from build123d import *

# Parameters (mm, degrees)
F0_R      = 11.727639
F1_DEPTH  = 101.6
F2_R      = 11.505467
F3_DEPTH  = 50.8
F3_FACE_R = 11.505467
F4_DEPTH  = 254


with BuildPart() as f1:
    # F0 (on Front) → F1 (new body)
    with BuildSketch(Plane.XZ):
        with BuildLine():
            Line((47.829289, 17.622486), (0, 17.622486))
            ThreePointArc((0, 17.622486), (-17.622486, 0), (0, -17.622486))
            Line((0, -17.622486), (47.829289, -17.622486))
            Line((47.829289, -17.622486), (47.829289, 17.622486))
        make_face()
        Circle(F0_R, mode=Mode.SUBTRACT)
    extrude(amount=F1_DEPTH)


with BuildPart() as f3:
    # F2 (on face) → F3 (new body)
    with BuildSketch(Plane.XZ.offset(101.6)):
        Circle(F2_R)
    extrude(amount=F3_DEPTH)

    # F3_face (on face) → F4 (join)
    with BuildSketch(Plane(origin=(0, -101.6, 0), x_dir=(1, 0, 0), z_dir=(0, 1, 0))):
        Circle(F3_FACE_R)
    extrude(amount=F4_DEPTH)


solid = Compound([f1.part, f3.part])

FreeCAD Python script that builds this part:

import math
import FreeCAD as App
import Part
import Sketcher
from FreeCAD import Vector

doc = App.newDocument("Part")
params = doc.addObject("Spreadsheet::Sheet", "Params")
for row, (alias, value) in enumerate([
    ("pad1_length", "4 in"),
    ("pad2_length", "2 in"),
    ("pad3_length", "10 in"),
], start=1):
    params.set(f"A{row}", alias)
    params.set(f"B{row}", "=" + value)
    params.setAlias(f"B{row}", alias)

body = doc.addObject("PartDesign::Body", "Body")

sketch1 = body.newObject("Sketcher::SketchObject", "Sketch")
sketch1.AttachmentSupport = (doc.getObject("XZ_Plane"), [""])
sketch1.MapMode = "FlatFace"
sketch1.addGeometry([
    Part.LineSegment(Vector(48, 18, 0), Vector(0, 18, 0)),
    Part.ArcOfCircle(Part.Circle(Vector(0, 0, 0), Vector(0, 0, 1), 18), math.radians(90), math.radians(270)),
    Part.LineSegment(Vector(0, -18, 0), Vector(48, -18, 0)),
    Part.LineSegment(Vector(48, -18, 0), Vector(48, 18, 0)),
    Part.Circle(Vector(0, 0, 0), Vector(0, 0, 1), 12),
], False)
sketch1.addConstraint([
    Sketcher.Constraint("Tangent", 0, 2, 1, 1),
    Sketcher.Constraint("Tangent", 1, 2, 2, 1),
    Sketcher.Constraint("Coincident", 2, 2, 3, 1),
    Sketcher.Constraint("Coincident", 3, 2, 0, 1),
    Sketcher.Constraint("Horizontal", 0),
    Sketcher.Constraint("Horizontal", 2),
    Sketcher.Constraint("Vertical", 3),
    Sketcher.Constraint("Coincident", 1, 3, -1, 1),
    Sketcher.Constraint("Coincident", 4, 3, -1, 1),
    Sketcher.Constraint("Diameter", 4, 23.455278),
    Sketcher.Constraint("Radius", 1, 17.622486),
    Sketcher.Constraint("DistanceX", 0, 2, 0, 1, 47.829289),
])
pad1 = body.newObject("PartDesign::Pad", "Pad")
pad1.Profile = sketch1
pad1.setExpression("Length", "Params.pad1_length")
body2 = doc.addObject("PartDesign::Body", "Body001")

sketch2 = body2.newObject("Sketcher::SketchObject", "Sketch001")
sketch2.AttachmentSupport = (doc.getObject("XZ_Plane001"), [""])
sketch2.MapMode = "FlatFace"
sketch2.AttachmentOffset = App.Placement(Vector(0, 0, 4 * 25.4), App.Rotation())
sketch2.addGeometry(Part.Circle(Vector(0, 0, 0), Vector(0, 0, 1), 12), False)
sketch2.addConstraint([
    Sketcher.Constraint("Coincident", 0, 3, -1, 1),
    Sketcher.Constraint("Diameter", 0, 23.010934),
])
pad2 = body2.newObject("PartDesign::Pad", "Pad001")
pad2.Profile = sketch2
pad2.setExpression("Length", "Params.pad2_length")

sketch3 = body2.newObject("Sketcher::SketchObject", "Sketch002")
sketch3.AttachmentSupport = (doc.getObject("XZ_Plane001"), [""])
sketch3.MapMode = "FlatFace"
sketch3.AttachmentOffset = App.Placement(Vector(0, 0, 4 * 25.4), App.Rotation())
sketch3.addGeometry(Part.Circle(Vector(0, 0, 0), Vector(0, 0, 1), 12), False)
sketch3.addConstraint([
    Sketcher.Constraint("Coincident", 0, 3, -1, 1),
    Sketcher.Constraint("Diameter", 0, 23.010934),
])
pad3 = body2.newObject("PartDesign::Pad", "Pad002")
pad3.Profile = sketch3
pad3.setExpression("Length", "Params.pad3_length")
pad3.Reversed = True

doc.recompute()
